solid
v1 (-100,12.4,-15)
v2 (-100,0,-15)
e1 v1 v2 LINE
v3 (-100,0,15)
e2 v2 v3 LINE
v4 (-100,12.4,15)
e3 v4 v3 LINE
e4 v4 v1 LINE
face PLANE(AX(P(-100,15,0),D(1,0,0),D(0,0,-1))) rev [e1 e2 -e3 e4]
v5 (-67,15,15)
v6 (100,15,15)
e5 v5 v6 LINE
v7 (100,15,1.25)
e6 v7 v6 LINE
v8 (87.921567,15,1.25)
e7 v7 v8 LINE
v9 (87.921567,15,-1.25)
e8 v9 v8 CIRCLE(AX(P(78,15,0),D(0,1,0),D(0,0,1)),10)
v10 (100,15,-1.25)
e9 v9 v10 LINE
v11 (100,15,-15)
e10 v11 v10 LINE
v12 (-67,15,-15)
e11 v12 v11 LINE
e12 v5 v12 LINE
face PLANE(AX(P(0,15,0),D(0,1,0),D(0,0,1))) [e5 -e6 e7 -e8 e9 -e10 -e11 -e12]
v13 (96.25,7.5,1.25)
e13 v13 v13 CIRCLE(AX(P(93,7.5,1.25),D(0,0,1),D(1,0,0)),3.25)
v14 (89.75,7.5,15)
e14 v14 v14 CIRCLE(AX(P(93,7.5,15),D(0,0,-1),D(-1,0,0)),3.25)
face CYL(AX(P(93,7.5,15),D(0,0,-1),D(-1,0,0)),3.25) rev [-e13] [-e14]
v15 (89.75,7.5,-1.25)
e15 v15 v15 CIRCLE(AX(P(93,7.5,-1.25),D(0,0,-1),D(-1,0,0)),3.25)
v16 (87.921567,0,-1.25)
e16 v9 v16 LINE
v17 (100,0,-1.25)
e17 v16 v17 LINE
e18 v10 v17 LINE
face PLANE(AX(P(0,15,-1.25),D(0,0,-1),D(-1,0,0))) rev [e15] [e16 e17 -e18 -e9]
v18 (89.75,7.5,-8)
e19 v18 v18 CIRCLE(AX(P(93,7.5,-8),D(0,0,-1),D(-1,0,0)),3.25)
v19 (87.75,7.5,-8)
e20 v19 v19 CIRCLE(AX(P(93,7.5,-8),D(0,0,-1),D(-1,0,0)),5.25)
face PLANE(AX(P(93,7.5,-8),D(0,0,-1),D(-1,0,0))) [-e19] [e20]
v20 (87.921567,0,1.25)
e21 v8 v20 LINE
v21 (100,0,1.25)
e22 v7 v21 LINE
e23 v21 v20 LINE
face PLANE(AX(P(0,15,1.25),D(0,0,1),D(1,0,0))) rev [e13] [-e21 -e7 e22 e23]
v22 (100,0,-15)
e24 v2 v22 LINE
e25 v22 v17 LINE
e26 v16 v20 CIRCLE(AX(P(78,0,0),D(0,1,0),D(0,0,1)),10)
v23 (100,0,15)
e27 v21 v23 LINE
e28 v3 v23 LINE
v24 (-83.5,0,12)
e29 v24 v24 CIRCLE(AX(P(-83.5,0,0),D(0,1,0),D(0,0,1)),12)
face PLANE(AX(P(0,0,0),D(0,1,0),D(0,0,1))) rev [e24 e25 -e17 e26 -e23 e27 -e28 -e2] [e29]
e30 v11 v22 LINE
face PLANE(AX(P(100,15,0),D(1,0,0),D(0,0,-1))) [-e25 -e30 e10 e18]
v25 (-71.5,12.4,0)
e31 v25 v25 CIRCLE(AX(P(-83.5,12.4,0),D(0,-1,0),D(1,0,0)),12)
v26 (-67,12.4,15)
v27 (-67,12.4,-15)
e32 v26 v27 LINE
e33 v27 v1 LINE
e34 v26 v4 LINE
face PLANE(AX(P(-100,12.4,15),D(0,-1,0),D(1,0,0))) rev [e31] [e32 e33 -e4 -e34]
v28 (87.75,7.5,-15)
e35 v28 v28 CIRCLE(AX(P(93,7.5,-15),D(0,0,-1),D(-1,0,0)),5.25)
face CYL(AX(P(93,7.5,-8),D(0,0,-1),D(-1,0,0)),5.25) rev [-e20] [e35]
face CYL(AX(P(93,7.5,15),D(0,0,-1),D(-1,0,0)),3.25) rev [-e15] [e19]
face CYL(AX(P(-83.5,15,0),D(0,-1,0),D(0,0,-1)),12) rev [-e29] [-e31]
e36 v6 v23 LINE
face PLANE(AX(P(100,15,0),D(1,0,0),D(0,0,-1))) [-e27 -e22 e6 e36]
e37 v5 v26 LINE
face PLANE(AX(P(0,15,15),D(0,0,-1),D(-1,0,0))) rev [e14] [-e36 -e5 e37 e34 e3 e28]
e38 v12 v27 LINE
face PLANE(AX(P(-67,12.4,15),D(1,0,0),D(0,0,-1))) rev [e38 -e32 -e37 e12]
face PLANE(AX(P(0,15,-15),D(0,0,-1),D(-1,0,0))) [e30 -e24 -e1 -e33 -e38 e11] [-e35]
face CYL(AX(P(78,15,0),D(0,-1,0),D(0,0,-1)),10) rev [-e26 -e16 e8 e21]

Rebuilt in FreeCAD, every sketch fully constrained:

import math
import FreeCAD as App
import Part
import Sketcher

V = App.Vector
Q = App.Units.Quantity

doc = App.newDocument("Part")
params = doc.addObject("Spreadsheet::Sheet", "Params")
for row, (alias, value) in enumerate([
    ("sketch1_diameter", "24 mm"),
    ("sketch1_radius", "10 mm"),
    ("sketch1_width", "200 mm"),
    ("sketch1_height", "30 mm"),
    ("sketch1_height2", "13.75 mm"),
    ("pad1_length", "15 mm"),
    ("sketch2_diameter", "10.5 mm"),
    ("pocket1_length", "7 mm"),
    ("sketch3_diameter", "6.5 mm"),
    ("sketch4_width", "33 mm"),
    ("sketch4_height", "2.6 mm"),
], start=1):
    params.set(f"A{row}", alias)
    params.set(f"B{row}", "=" + value)
    params.setAlias(f"B{row}", alias)

body = doc.addObject("PartDesign::Body", "Body")

# Sketch on XZ plane
sketch1 = doc.addObject("Sketcher::SketchObject", "Sketch")
body.addObject(sketch1)
sketch1.AttachmentSupport = (doc.XZ_Plane, [""])
sketch1.MapMode = "FlatFace"
sketch1.addGeometry([
    Part.ArcOfCircle(Part.Circle(V(78, 0, 0), V(0, 0, 1), 10), math.radians(7.180756), math.radians(352.819244)),  # 0
    Part.LineSegment(V(87.921567, -1.25, 0), V(100, -1.25, 0)),  # 1
    Part.LineSegment(V(100, -1.25, 0), V(100, -15, 0)),  # 2
    Part.LineSegment(V(100, -15, 0), V(-100, -15, 0)),  # 3
    Part.LineSegment(V(-100, -15, 0), V(-100, 15, 0)),  # 4
    Part.LineSegment(V(-100, 15, 0), V(100, 15, 0)),  # 5
    Part.LineSegment(V(100, 15, 0), V(100, 1.25, 0)),  # 6
    Part.LineSegment(V(100, 1.25, 0), V(87.921567, 1.25, 0)),  # 7
    Part.Circle(V(-83.5, 0, 0), V(0, 0, 1), 12),  # 8
], False)
sketch1.addConstraint([
    Sketcher.Constraint("Coincident", 0, 2, 1, 1),
    Sketcher.Constraint("Coincident", 1, 2, 2, 1),
    Sketcher.Constraint("Coincident", 2, 2, 3, 1),
    Sketcher.Constraint("Coincident", 3, 2, 4, 1),
    Sketcher.Constraint("Coincident", 4, 2, 5, 1),
    Sketcher.Constraint("Coincident", 5, 2, 6, 1),
    Sketcher.Constraint("Coincident", 6, 2, 7, 1),
    Sketcher.Constraint("Coincident", 7, 2, 0, 1),
    Sketcher.Constraint("Horizontal", 1),
    Sketcher.Constraint("Vertical", 2),
    Sketcher.Constraint("Horizontal", 3),
    Sketcher.Constraint("Vertical", 4),
    Sketcher.Constraint("Horizontal", 5),
    Sketcher.Constraint("Vertical", 6),
    Sketcher.Constraint("Horizontal", 7),
    Sketcher.Constraint("Symmetric", 2, 2, 4, 2, -1, 1),
    Sketcher.Constraint("Symmetric", 1, 2, 6, 2, -1),
    Sketcher.Constraint("PointOnObject", 0, 3, -1),
    Sketcher.Constraint("PointOnObject", 8, 3, -1),
    Sketcher.Constraint("Diameter", 8, Q("24 mm")),
    Sketcher.Constraint("Radius", 0, Q("10 mm")),
    Sketcher.Constraint("DistanceX", 3, 2, 3, 1, Q("200 mm")),
    Sketcher.Constraint("DistanceY", 4, 1, 4, 2, Q("30 mm")),
    Sketcher.Constraint("DistanceX", -1, 1, 0, 3, Q("78 mm")),
    Sketcher.Constraint("DistanceY", 2, 2, 2, 1, Q("13.75 mm")),
    Sketcher.Constraint("DistanceX", 8, 3, -1, 1, Q("83.5 mm")),
])
sketch1.setExpression("Constraints[19]", "Params.sketch1_diameter")
sketch1.setExpression("Constraints[20]", "Params.sketch1_radius")
sketch1.setExpression("Constraints[21]", "Params.sketch1_width")
sketch1.setExpression("Constraints[22]", "Params.sketch1_height")
sketch1.setExpression("Constraints[24]", "Params.sketch1_height2")
pad1 = doc.addObject("PartDesign::Pad", "Pad")
body.addObject(pad1)
pad1.Profile = sketch1
pad1.setExpression("Length", "Params.pad1_length")
pad1.Reversed = True

# Sketch on XY plane
sketch2 = doc.addObject("Sketcher::SketchObject", "Sketch001")
body.addObject(sketch2)
sketch2.AttachmentSupport = (doc.XY_Plane, [""])
sketch2.MapMode = "FlatFace"
sketch2.AttachmentOffset = App.Placement(V(0, 0, -15), App.Rotation())
sketch2.addGeometry(Part.Circle(V(93, 7.5, 0), V(0, 0, 1), 5.25), False)
sketch2.addConstraint([
    Sketcher.Constraint("Diameter", 0, Q("10.5 mm")),
    Sketcher.Constraint("DistanceX", -1, 1, 0, 3, Q("93 mm")),
    Sketcher.Constraint("DistanceY", -1, 1, 0, 3, Q("7.5 mm")),
])
sketch2.setExpression("Constraints[0]", "Params.sketch2_diameter")
pocket1 = doc.addObject("PartDesign::Pocket", "Pocket")
body.addObject(pocket1)
pocket1.Profile = sketch2
pocket1.setExpression("Length", "Params.pocket1_length")
pocket1.Reversed = True

# Sketch on XY plane
sketch3 = doc.addObject("Sketcher::SketchObject", "Sketch002")
body.addObject(sketch3)
sketch3.AttachmentSupport = (doc.XY_Plane, [""])
sketch3.MapMode = "FlatFace"
sketch3.AttachmentOffset = App.Placement(V(0, 0, -8), App.Rotation())
sketch3.addGeometry(Part.Circle(V(93, 7.5, 0), V(0, 0, 1), 3.25), False)
sketch3.addConstraint([
    Sketcher.Constraint("Diameter", 0, Q("6.5 mm")),
    Sketcher.Constraint("DistanceX", -1, 1, 0, 3, Q("93 mm")),
    Sketcher.Constraint("DistanceY", -1, 1, 0, 3, Q("7.5 mm")),
])
sketch3.setExpression("Constraints[0]", "Params.sketch3_diameter")
pocket2 = doc.addObject("PartDesign::Pocket", "Pocket001")
body.addObject(pocket2)
pocket2.Profile = sketch3
pocket2.Type = "ThroughAll"
pocket2.Reversed = True

# Sketch on XY plane
sketch4 = doc.addObject("Sketcher::SketchObject", "Sketch003")
body.addObject(sketch4)
sketch4.AttachmentSupport = (doc.XY_Plane, [""])
sketch4.MapMode = "FlatFace"
sketch4.AttachmentOffset = App.Placement(V(0, 0, -15), App.Rotation())
sketch4.addGeometry([
    Part.LineSegment(V(-67, 15, 0), V(-67, 12.4, 0)),
    Part.LineSegment(V(-67, 12.4, 0), V(-100, 12.4, 0)),
    Part.LineSegment(V(-100, 12.4, 0), V(-100, 15, 0)),
    Part.LineSegment(V(-100, 15, 0), V(-67, 15, 0)),
], False)
sketch4.addConstraint([
    Sketcher.Constraint("Coincident", 0, 2, 1, 1),
    Sketcher.Constraint("Coincident", 1, 2, 2, 1),
    Sketcher.Constraint("Coincident", 2, 2, 3, 1),
    Sketcher.Constraint("Coincident", 3, 2, 0, 1),
    Sketcher.Constraint("Vertical", 0),
    Sketcher.Constraint("Horizontal", 1),
    Sketcher.Constraint("Vertical", 2),
    Sketcher.Constraint("Horizontal", 3),
    Sketcher.Constraint("DistanceX", 1, 2, 1, 1, Q("33 mm")),
    Sketcher.Constraint("DistanceY", 0, 2, 0, 1, Q("2.6 mm")),
    Sketcher.Constraint("DistanceX", 0, 2, -1, 1, Q("67 mm")),
    Sketcher.Constraint("DistanceY", -1, 1, 2, 2, Q("15 mm")),
])
sketch4.setExpression("Constraints[8]", "Params.sketch4_width")
sketch4.setExpression("Constraints[9]", "Params.sketch4_height")
pocket3 = doc.addObject("PartDesign::Pocket", "Pocket002")
body.addObject(pocket3)
pocket3.Profile = sketch4
pocket3.Type = "ThroughAll"
pocket3.Reversed = True

doc.recompute()
